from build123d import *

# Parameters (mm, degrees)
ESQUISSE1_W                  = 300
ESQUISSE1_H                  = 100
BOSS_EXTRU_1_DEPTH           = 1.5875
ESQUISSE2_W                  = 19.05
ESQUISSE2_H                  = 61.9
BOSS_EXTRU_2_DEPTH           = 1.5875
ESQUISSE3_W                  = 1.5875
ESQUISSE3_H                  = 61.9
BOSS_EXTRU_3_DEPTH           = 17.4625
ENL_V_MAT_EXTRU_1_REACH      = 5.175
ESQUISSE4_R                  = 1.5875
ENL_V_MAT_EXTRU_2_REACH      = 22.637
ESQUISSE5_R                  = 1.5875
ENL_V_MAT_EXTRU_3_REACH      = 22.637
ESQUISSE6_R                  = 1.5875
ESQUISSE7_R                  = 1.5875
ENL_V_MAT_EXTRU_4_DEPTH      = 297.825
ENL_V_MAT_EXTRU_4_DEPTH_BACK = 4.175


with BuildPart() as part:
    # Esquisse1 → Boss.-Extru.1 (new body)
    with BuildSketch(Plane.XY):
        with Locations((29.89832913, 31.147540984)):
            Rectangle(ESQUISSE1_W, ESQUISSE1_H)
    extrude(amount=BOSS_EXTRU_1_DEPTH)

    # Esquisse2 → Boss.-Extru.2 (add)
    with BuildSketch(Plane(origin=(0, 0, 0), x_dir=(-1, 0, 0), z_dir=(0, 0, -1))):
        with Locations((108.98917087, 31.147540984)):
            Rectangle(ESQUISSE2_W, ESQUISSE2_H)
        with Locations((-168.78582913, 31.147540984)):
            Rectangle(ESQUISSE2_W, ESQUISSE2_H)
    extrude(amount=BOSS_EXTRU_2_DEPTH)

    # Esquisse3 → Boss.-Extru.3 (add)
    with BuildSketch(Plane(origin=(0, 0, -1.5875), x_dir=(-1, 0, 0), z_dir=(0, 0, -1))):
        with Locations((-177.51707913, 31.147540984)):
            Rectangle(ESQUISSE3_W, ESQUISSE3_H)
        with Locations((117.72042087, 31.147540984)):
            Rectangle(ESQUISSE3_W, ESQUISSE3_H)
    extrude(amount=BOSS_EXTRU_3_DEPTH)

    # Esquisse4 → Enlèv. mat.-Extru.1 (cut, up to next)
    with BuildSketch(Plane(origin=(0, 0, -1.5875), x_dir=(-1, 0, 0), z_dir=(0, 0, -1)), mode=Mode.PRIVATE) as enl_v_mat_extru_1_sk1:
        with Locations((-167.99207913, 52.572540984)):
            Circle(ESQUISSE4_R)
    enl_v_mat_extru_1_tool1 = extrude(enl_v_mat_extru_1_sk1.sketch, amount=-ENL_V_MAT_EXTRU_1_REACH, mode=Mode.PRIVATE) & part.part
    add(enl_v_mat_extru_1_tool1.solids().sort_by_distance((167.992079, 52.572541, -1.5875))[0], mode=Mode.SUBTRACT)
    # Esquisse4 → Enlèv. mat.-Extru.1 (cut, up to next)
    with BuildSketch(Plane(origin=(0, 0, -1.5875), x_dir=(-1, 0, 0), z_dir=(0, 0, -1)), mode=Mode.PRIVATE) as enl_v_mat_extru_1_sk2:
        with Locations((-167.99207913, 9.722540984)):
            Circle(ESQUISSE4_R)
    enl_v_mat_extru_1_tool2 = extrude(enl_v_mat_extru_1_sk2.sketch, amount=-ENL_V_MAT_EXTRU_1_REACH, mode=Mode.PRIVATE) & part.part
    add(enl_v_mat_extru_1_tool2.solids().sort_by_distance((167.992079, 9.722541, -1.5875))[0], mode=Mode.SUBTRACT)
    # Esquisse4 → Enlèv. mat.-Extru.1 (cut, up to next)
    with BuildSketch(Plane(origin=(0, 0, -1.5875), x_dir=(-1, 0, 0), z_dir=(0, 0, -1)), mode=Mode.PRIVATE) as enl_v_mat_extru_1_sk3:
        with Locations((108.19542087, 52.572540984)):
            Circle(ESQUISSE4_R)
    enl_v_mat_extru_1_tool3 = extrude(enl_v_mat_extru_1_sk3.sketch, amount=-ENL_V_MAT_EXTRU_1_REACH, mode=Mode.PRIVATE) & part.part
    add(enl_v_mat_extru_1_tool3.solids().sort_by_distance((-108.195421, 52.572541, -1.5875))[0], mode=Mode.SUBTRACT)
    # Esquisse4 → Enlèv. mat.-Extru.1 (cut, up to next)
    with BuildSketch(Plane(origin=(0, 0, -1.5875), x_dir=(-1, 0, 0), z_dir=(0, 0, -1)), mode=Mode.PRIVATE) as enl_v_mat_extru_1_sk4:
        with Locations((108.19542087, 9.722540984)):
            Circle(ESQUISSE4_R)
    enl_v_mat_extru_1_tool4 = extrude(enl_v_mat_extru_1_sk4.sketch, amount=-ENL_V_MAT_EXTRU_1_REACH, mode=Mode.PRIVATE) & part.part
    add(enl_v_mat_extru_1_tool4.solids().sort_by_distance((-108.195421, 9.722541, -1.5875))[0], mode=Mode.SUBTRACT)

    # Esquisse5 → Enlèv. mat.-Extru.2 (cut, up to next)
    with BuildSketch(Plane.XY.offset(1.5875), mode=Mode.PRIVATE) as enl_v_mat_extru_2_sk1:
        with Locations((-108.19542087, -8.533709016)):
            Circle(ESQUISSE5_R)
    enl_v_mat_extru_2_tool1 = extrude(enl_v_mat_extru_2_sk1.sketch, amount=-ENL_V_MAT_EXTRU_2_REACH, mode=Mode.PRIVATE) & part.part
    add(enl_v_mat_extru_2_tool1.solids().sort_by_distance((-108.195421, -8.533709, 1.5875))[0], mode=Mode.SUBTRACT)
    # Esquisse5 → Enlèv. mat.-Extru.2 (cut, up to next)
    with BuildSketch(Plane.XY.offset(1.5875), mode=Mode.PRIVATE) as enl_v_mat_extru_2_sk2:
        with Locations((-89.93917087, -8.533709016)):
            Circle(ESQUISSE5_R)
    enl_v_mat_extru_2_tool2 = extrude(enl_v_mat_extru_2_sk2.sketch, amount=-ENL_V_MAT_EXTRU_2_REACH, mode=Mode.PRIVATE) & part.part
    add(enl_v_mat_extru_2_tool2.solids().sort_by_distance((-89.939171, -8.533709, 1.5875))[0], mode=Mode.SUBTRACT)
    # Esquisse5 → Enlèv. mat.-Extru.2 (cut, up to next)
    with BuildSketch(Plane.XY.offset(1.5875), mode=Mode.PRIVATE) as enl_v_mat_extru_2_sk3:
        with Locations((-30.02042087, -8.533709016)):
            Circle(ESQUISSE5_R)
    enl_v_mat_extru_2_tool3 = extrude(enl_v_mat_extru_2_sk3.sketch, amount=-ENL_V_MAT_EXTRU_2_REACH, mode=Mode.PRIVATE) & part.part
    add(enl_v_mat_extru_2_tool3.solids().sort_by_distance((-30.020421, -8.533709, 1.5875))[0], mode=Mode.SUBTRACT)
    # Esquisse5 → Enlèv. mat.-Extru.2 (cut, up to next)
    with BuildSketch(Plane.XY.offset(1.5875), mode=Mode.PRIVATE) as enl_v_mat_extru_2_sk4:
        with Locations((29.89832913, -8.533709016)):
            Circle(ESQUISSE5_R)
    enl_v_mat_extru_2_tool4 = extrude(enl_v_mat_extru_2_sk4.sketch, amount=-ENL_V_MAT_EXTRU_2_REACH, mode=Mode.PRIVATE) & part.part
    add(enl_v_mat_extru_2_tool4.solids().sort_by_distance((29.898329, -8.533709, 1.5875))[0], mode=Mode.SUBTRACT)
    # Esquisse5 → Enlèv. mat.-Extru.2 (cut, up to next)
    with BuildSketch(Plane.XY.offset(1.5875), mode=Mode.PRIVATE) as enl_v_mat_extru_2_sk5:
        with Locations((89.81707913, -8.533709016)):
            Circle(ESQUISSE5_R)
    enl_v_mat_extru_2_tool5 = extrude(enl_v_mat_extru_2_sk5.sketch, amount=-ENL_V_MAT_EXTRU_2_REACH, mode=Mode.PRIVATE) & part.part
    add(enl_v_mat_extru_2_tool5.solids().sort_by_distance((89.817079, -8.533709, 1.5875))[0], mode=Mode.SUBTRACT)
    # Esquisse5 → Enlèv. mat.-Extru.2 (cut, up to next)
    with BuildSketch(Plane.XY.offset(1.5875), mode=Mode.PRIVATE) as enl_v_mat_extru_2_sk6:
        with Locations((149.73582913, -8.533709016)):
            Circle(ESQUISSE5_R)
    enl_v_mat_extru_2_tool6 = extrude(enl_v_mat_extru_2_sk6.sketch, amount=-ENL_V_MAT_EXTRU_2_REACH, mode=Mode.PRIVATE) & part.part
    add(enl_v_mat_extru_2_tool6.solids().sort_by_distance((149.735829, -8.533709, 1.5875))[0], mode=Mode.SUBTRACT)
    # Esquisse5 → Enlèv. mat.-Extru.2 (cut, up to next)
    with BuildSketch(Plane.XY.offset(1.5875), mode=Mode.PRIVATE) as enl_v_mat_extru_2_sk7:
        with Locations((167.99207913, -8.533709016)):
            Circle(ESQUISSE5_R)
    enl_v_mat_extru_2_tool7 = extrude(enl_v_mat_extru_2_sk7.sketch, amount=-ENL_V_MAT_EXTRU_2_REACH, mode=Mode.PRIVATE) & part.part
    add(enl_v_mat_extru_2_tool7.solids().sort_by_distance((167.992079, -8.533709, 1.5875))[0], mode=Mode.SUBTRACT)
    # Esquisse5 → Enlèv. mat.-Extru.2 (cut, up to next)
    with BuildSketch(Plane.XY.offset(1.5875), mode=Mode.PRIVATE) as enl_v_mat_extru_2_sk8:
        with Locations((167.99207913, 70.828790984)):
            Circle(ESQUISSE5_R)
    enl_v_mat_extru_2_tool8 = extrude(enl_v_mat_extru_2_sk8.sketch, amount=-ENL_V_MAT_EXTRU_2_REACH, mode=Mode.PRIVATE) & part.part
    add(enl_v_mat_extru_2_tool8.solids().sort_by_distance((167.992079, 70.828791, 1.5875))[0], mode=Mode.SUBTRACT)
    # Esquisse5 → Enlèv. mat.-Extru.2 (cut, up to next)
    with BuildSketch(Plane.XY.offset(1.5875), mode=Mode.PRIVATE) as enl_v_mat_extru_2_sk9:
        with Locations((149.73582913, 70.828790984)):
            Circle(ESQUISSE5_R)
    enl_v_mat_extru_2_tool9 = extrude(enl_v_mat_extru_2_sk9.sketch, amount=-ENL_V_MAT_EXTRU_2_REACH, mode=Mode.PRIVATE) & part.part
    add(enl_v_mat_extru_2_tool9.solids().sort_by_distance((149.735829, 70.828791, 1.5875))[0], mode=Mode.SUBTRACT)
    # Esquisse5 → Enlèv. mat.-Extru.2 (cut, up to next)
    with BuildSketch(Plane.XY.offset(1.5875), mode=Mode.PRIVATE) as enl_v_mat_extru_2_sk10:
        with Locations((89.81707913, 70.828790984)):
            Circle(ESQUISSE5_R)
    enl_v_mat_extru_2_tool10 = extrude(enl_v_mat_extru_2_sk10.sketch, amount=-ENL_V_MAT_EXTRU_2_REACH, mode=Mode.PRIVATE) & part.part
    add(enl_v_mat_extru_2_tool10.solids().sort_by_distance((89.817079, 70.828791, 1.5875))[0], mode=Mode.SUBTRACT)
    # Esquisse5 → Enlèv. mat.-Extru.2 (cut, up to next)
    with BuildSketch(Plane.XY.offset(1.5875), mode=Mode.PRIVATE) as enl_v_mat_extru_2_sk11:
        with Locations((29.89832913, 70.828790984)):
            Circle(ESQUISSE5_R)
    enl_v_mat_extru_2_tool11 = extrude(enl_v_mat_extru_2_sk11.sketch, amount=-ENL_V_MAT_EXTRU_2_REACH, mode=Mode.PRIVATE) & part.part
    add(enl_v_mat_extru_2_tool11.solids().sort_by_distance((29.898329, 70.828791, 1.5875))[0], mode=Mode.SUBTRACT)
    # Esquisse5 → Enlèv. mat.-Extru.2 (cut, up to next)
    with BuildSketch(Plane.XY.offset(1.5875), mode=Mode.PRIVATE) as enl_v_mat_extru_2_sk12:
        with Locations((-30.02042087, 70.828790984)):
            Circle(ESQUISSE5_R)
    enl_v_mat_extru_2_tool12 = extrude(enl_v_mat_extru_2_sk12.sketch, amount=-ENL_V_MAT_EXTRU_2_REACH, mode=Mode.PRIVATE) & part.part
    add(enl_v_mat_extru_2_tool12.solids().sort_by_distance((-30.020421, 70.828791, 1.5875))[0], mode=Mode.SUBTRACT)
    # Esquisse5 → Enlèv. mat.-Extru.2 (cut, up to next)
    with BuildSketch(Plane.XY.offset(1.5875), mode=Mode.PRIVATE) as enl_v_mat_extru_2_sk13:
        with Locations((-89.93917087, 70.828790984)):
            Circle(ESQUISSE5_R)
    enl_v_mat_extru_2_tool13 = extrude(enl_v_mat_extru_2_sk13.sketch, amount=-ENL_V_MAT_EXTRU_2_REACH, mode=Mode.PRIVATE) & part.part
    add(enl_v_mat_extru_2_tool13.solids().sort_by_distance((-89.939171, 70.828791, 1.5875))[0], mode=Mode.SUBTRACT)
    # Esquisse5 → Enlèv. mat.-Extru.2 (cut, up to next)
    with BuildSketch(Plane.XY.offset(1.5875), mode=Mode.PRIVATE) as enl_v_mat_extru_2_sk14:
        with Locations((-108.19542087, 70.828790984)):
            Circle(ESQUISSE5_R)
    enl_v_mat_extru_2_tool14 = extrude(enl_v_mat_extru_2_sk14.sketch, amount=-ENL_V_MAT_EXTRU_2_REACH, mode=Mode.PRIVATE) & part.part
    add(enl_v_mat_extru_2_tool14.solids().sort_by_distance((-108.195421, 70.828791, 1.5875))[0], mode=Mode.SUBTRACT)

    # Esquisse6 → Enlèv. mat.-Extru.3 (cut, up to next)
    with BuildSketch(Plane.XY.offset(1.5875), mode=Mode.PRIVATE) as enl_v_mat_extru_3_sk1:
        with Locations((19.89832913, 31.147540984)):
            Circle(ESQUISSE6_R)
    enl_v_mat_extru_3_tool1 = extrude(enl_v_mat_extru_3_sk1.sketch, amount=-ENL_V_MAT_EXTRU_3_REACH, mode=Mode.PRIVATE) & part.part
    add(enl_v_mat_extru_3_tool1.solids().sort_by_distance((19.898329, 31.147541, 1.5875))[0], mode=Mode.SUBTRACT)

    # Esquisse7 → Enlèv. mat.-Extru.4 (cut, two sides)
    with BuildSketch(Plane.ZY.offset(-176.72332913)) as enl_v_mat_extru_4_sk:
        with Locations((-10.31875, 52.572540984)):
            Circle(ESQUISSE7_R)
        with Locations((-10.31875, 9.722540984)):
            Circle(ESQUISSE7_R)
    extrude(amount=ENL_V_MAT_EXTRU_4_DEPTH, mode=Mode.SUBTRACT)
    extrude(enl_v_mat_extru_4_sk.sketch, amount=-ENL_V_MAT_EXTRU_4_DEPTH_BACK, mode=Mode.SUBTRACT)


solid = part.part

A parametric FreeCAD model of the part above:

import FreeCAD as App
import Part
import Sketcher

V = App.Vector
Q = App.Units.Quantity


def add_polygon(sketch, points):
    """Adds a closed chain of lines whose ends are joined by coincident constraints."""
    first, n = sketch.GeometryCount, len(points)
    for a, b in zip(points, points[1:] + points[:1]):
        sketch.addGeometry(Part.LineSegment(App.Vector(*a, 0), App.Vector(*b, 0)), False)
    for i in range(n):
        sketch.addConstraint(Sketcher.Constraint("Coincident", first + i, 2, first + (i + 1) % n, 1))

doc = App.newDocument("Part")
body = doc.addObject("PartDesign::Body", "Body")

# Sketch on XY plane
sketch1 = doc.addObject("Sketcher::SketchObject", "Sketch")
body.addObject(sketch1)
sketch1.AttachmentSupport = (doc.XY_Plane, [""])
sketch1.MapMode = "FlatFace"
add_polygon(sketch1, [(-120.101671, 81.147541), (-120.101671, -18.852459), (179.898329, -18.852459), (179.898329, 81.147541)])  # lines 0-3
sketch1.addConstraint([
    Sketcher.Constraint("Vertical", 0),
    Sketcher.Constraint("Horizontal", 1),
    Sketcher.Constraint("Vertical", 2),
    Sketcher.Constraint("Horizontal", 3),
    Sketcher.Constraint("DistanceX", 1, 1, 1, 2, Q("300 mm")),
    Sketcher.Constraint("DistanceY", 0, 2, 0, 1, Q("100 mm")),
    Sketcher.Constraint("DistanceX", 0, 2, -1, 1, Q("120.101671 mm")),
    Sketcher.Constraint("DistanceY", 0, 2, -1, 1, Q("18.852459 mm")),
])
pad1 = doc.addObject("PartDesign::Pad", "Pad")
body.addObject(pad1)
pad1.Profile = sketch1
pad1.Length = Q("0.0625 in")

# Sketch on XY plane
sketch2 = doc.addObject("Sketcher::SketchObject", "Sketch001")
body.addObject(sketch2)
sketch2.AttachmentSupport = (doc.XY_Plane, [""])
sketch2.MapMode = "FlatFace"
add_polygon(sketch2, [(-99.464171, 62.097541), (-99.464171, 0.197541), (-118.514171, 0.197541), (-118.514171, 62.097541)])  # lines 0-3
add_polygon(sketch2, [(178.310829, 62.097541), (178.310829, 0.197541), (159.260829, 0.197541), (159.260829, 62.097541)])  # lines 4-7
sketch2.addConstraint([
    Sketcher.Constraint("Vertical", 0),
    Sketcher.Constraint("Horizontal", 1),
    Sketcher.Constraint("Vertical", 2),
    Sketcher.Constraint("Horizontal", 3),
    Sketcher.Constraint("Vertical", 4),
    Sketcher.Constraint("Horizontal", 5),
    Sketcher.Constraint("Vertical", 6),
    Sketcher.Constraint("Horizontal", 7),
    Sketcher.Constraint("Horizontal", 1, 2, 4, 2),
    Sketcher.Constraint("Horizontal", 3, 2, 6, 2),
    Sketcher.Constraint("Equal", 3, 5),
    Sketcher.Constraint("DistanceX", 1, 2, 1, 1, Q("0.75 in")),
    Sketcher.Constraint("DistanceY", 0, 2, 0, 1, Q("61.9 mm")),
    Sketcher.Constraint("DistanceX", 0, 2, 4, 2, Q("277.775 mm")),
    Sketcher.Constraint("DistanceX", 0, 2, -1, 1, Q("99.464171 mm")),
    Sketcher.Constraint("DistanceY", -1, 1, 0, 2, Q("0.197541 mm")),
])
pad2 = doc.addObject("PartDesign::Pad", "Pad001")
body.addObject(pad2)
pad2.Profile = sketch2
pad2.Length = Q("0.0625 in")
pad2.Reversed = True

# Sketch on XY plane
sketch3 = doc.addObject("Sketcher::SketchObject", "Sketch002")
body.addObject(sketch3)
sketch3.AttachmentSupport = (doc.XY_Plane, [""])
sketch3.MapMode = "FlatFace"
sketch3.AttachmentOffset = App.Placement(V(0, 0, -0.0625 * 25.4), App.Rotation())
add_polygon(sketch3, [(178.310829, 62.097541), (178.310829, 0.197541), (176.723329, 0.197541), (176.723329, 62.097541)])  # lines 0-3
add_polygon(sketch3, [(-116.926671, 62.097541), (-116.926671, 0.197541), (-118.514171, 0.197541), (-118.514171, 62.097541)])  # lines 4-7
sketch3.addConstraint([
    Sketcher.Constraint("Vertical", 0),
    Sketcher.Constraint("Horizontal", 1),
    Sketcher.Constraint("Vertical", 2),
    Sketcher.Constraint("Horizontal", 3),
    Sketcher.Constraint("Vertical", 4),
    Sketcher.Constraint("Horizontal", 5),
    Sketcher.Constraint("Vertical", 6),
    Sketcher.Constraint("Horizontal", 7),
    Sketcher.Constraint("Horizontal", 1, 2, 4, 2),
    Sketcher.Constraint("Horizontal", 3, 2, 6, 2),
    Sketcher.Constraint("Equal", 3, 5),
    Sketcher.Constraint("DistanceX", 1, 2, 1, 1, Q("0.0625 in")),
    Sketcher.Constraint("DistanceY", 0, 2, 0, 1, Q("61.9 mm")),
    Sketcher.Constraint("DistanceX", 4, 2, 1, 2, Q("293.65 mm")),
    Sketcher.Constraint("DistanceX", -1, 1, 0, 2, Q("178.310829 mm")),
    Sketcher.Constraint("DistanceY", -1, 1, 0, 2, Q("0.197541 mm")),
])
pad3 = doc.addObject("PartDesign::Pad", "Pad002")
body.addObject(pad3)
pad3.Profile = sketch3
pad3.Length = Q("0.6875 in")
pad3.Reversed = True

# Sketch on XY plane
sketch4 = doc.addObject("Sketcher::SketchObject", "Sketch003")
body.addObject(sketch4)
sketch4.AttachmentSupport = (doc.XY_Plane, [""])
sketch4.MapMode = "FlatFace"
sketch4.AttachmentOffset = App.Placement(V(0, 0, -0.0625 * 25.4), App.Rotation())
sketch4.addGeometry(Part.Circle(V(167.992079, 52.572541, 0), V(0, 0, 1), 1.5875), False)
sketch4.addConstraint([
    Sketcher.Constraint("Diameter", 0, Q("0.125 in")),
    Sketcher.Constraint("DistanceX", -1, 1, 0, 3, Q("167.992079 mm")),
    Sketcher.Constraint("DistanceY", -1, 1, 0, 3, Q("52.572541 mm")),
])
pocket1 = doc.addObject("PartDesign::Pocket", "Pocket")
body.addObject(pocket1)
pocket1.Profile = sketch4
pocket1.Type = "UpToFirst"
pocket1.Reversed = True

# Sketch on XY plane
sketch5 = doc.addObject("Sketcher::SketchObject", "Sketch004")
body.addObject(sketch5)
sketch5.AttachmentSupport = (doc.XY_Plane, [""])
sketch5.MapMode = "FlatFace"
sketch5.AttachmentOffset = App.Placement(V(0, 0, -0.0625 * 25.4), App.Rotation())
sketch5.addGeometry(Part.Circle(V(167.992079, 9.722541, 0), V(0, 0, 1), 1.5875), False)
sketch5.addConstraint([
    Sketcher.Constraint("Diameter", 0, Q("0.125 in")),
    Sketcher.Constraint("DistanceX", -1, 1, 0, 3, Q("167.992079 mm")),
    Sketcher.Constraint("DistanceY", -1, 1, 0, 3, Q("9.722541 mm")),
])
pocket2 = doc.addObject("PartDesign::Pocket", "Pocket001")
body.addObject(pocket2)
pocket2.Profile = sketch5
pocket2.Type = "UpToFirst"
pocket2.Reversed = True

# Sketch on XY plane
sketch6 = doc.addObject("Sketcher::SketchObject", "Sketch005")
body.addObject(sketch6)
sketch6.AttachmentSupport = (doc.XY_Plane, [""])
sketch6.MapMode = "FlatFace"
sketch6.AttachmentOffset = App.Placement(V(0, 0, -0.0625 * 25.4), App.Rotation())
sketch6.addGeometry(Part.Circle(V(-108.195421, 52.572541, 0), V(0, 0, 1), 1.5875), False)
sketch6.addConstraint([
    Sketcher.Constraint("Diameter", 0, Q("0.125 in")),
    Sketcher.Constraint("DistanceX", 0, 3, -1, 1, Q("108.195421 mm")),
    Sketcher.Constraint("DistanceY", -1, 1, 0, 3, Q("52.572541 mm")),
])
pocket3 = doc.addObject("PartDesign::Pocket", "Pocket002")
body.addObject(pocket3)
pocket3.Profile = sketch6
pocket3.Type = "UpToFirst"
pocket3.Reversed = True

# Sketch on XY plane
sketch7 = doc.addObject("Sketcher::SketchObject", "Sketch006")
body.addObject(sketch7)
sketch7.AttachmentSupport = (doc.XY_Plane, [""])
sketch7.MapMode = "FlatFace"
sketch7.AttachmentOffset = App.Placement(V(0, 0, -0.0625 * 25.4), App.Rotation())
sketch7.addGeometry(Part.Circle(V(-108.195421, 9.722541, 0), V(0, 0, 1), 1.5875), False)
sketch7.addConstraint([
    Sketcher.Constraint("Diameter", 0, Q("0.125 in")),
    Sketcher.Constraint("DistanceX", 0, 3, -1, 1, Q("108.195421 mm")),
    Sketcher.Constraint("DistanceY", -1, 1, 0, 3, Q("9.722541 mm")),
])
pocket4 = doc.addObject("PartDesign::Pocket", "Pocket003")
body.addObject(pocket4)
pocket4.Profile = sketch7
pocket4.Type = "UpToFirst"
pocket4.Reversed = True

# Sketch on XY plane
sketch8 = doc.addObject("Sketcher::SketchObject", "Sketch007")
body.addObject(sketch8)
sketch8.AttachmentSupport = (doc.XY_Plane, [""])
sketch8.MapMode = "FlatFace"
sketch8.AttachmentOffset = App.Placement(V(0, 0, 0.0625 * 25.4), App.Rotation())
sketch8.addGeometry(Part.Circle(V(-108.195421, -8.533709, 0), V(0, 0, 1), 1.5875), False)
sketch8.addConstraint([
    Sketcher.Constraint("Diameter", 0, Q("0.125 in")),
    Sketcher.Constraint("DistanceX", 0, 3, -1, 1, Q("108.195421 mm")),
    Sketcher.Constraint("DistanceY", 0, 3, -1, 1, Q("8.533709 mm")),
])
pocket5 = doc.addObject("PartDesign::Pocket", "Pocket004")
body.addObject(pocket5)
pocket5.Profile = sketch8
pocket5.Type = "UpToFirst"

# Sketch on XY plane
sketch9 = doc.addObject("Sketcher::SketchObject", "Sketch008")
body.addObject(sketch9)
sketch9.AttachmentSupport = (doc.XY_Plane, [""])
sketch9.MapMode = "FlatFace"
sketch9.AttachmentOffset = App.Placement(V(0, 0, 0.0625 * 25.4), App.Rotation())
sketch9.addGeometry(Part.Circle(V(-89.939171, -8.533709, 0), V(0, 0, 1), 1.5875), False)
sketch9.addConstraint([
    Sketcher.Constraint("Diameter", 0, Q("0.125 in")),
    Sketcher.Constraint("DistanceX", 0, 3, -1, 1, Q("89.939171 mm")),
    Sketcher.Constraint("DistanceY", 0, 3, -1, 1, Q("8.533709 mm")),
])
pocket6 = doc.addObject("PartDesign::Pocket", "Pocket005")
body.addObject(pocket6)
pocket6.Profile = sketch9
pocket6.Type = "UpToFirst"

# Sketch on XY plane
sketch10 = doc.addObject("Sketcher::SketchObject", "Sketch009")
body.addObject(sketch10)
sketch10.AttachmentSupport = (doc.XY_Plane, [""])
sketch10.MapMode = "FlatFace"
sketch10.AttachmentOffset = App.Placement(V(0, 0, 0.0625 * 25.4), App.Rotation())
sketch10.addGeometry(Part.Circle(V(-30.020421, -8.533709, 0), V(0, 0, 1), 1.5875), False)
sketch10.addConstraint([
    Sketcher.Constraint("Diameter", 0, Q("0.125 in")),
    Sketcher.Constraint("DistanceX", 0, 3, -1, 1, Q("30.020421 mm")),
    Sketcher.Constraint("DistanceY", 0, 3, -1, 1, Q("8.533709 mm")),
])
pocket7 = doc.addObject("PartDesign::Pocket", "Pocket006")
body.addObject(pocket7)
pocket7.Profile = sketch10
pocket7.Type = "UpToFirst"

# Sketch on XY plane
sketch11 = doc.addObject("Sketcher::SketchObject", "Sketch010")
body.addObject(sketch11)
sketch11.AttachmentSupport = (doc.XY_Plane, [""])
sketch11.MapMode = "FlatFace"
sketch11.AttachmentOffset = App.Placement(V(0, 0, 0.0625 * 25.4), App.Rotation())
sketch11.addGeometry(Part.Circle(V(29.898329, -8.533709, 0), V(0, 0, 1), 1.5875), False)
sketch11.addConstraint([
    Sketcher.Constraint("Diameter", 0, Q("0.125 in")),
    Sketcher.Constraint("DistanceX", -1, 1, 0, 3, Q("29.898329 mm")),
    Sketcher.Constraint("DistanceY", 0, 3, -1, 1, Q("8.533709 mm")),
])
pocket8 = doc.addObject("PartDesign::Pocket", "Pocket007")
body.addObject(pocket8)
pocket8.Profile = sketch11
pocket8.Type = "UpToFirst"

# Sketch on XY plane
sketch12 = doc.addObject("Sketcher::SketchObject", "Sketch011")
body.addObject(sketch12)
sketch12.AttachmentSupport = (doc.XY_Plane, [""])
sketch12.MapMode = "FlatFace"
sketch12.AttachmentOffset = App.Placement(V(0, 0, 0.0625 * 25.4), App.Rotation())
sketch12.addGeometry(Part.Circle(V(89.817079, -8.533709, 0), V(0, 0, 1), 1.5875), False)
sketch12.addConstraint([
    Sketcher.Constraint("Diameter", 0, Q("0.125 in")),
    Sketcher.Constraint("DistanceX", -1, 1, 0, 3, Q("89.817079 mm")),
    Sketcher.Constraint("DistanceY", 0, 3, -1, 1, Q("8.533709 mm")),
])
pocket9 = doc.addObject("PartDesign::Pocket", "Pocket008")
body.addObject(pocket9)
pocket9.Profile = sketch12
pocket9.Type = "UpToFirst"

# Sketch on XY plane
sketch13 = doc.addObject("Sketcher::SketchObject", "Sketch012")
body.addObject(sketch13)
sketch13.AttachmentSupport = (doc.XY_Plane, [""])
sketch13.MapMode = "FlatFace"
sketch13.AttachmentOffset = App.Placement(V(0, 0, 0.0625 * 25.4), App.Rotation())
sketch13.addGeometry(Part.Circle(V(149.735829, -8.533709, 0), V(0, 0, 1), 1.5875), False)
sketch13.addConstraint([
    Sketcher.Constraint("Diameter", 0, Q("0.125 in")),
    Sketcher.Constraint("DistanceX", -1, 1, 0, 3, Q("149.735829 mm")),
    Sketcher.Constraint("DistanceY", 0, 3, -1, 1, Q("8.533709 mm")),
])
pocket10 = doc.addObject("PartDesign::Pocket", "Pocket009")
body.addObject(pocket10)
pocket10.Profile = sketch13
pocket10.Type = "UpToFirst"

# Sketch on XY plane
sketch14 = doc.addObject("Sketcher::SketchObject", "Sketch013")
body.addObject(sketch14)
sketch14.AttachmentSupport = (doc.XY_Plane, [""])
sketch14.MapMode = "FlatFace"
sketch14.AttachmentOffset = App.Placement(V(0, 0, 0.0625 * 25.4), App.Rotation())
sketch14.addGeometry(Part.Circle(V(167.992079, -8.533709, 0), V(0, 0, 1), 1.5875), False)
sketch14.addConstraint([
    Sketcher.Constraint("Diameter", 0, Q("0.125 in")),
    Sketcher.Constraint("DistanceX", -1, 1, 0, 3, Q("167.992079 mm")),
    Sketcher.Constraint("DistanceY", 0, 3, -1, 1, Q("8.533709 mm")),
])
pocket11 = doc.addObject("PartDesign::Pocket", "Pocket010")
body.addObject(pocket11)
pocket11.Profile = sketch14
pocket11.Type = "UpToFirst"

# Sketch on XY plane
sketch15 = doc.addObject("Sketcher::SketchObject", "Sketch014")
body.addObject(sketch15)
sketch15.AttachmentSupport = (doc.XY_Plane, [""])
sketch15.MapMode = "FlatFace"
sketch15.AttachmentOffset = App.Placement(V(0, 0, 0.0625 * 25.4), App.Rotation())
sketch15.addGeometry(Part.Circle(V(167.992079, 70.828791, 0), V(0, 0, 1), 1.5875), False)
sketch15.addConstraint([
    Sketcher.Constraint("Diameter", 0, Q("0.125 in")),
    Sketcher.Constraint("DistanceX", -1, 1, 0, 3, Q("167.992079 mm")),
    Sketcher.Constraint("DistanceY", -1, 1, 0, 3, Q("70.828791 mm")),
])
pocket12 = doc.addObject("PartDesign::Pocket", "Pocket011")
body.addObject(pocket12)
pocket12.Profile = sketch15
pocket12.Type = "UpToFirst"

# Sketch on XY plane
sketch16 = doc.addObject("Sketcher::SketchObject", "Sketch015")
body.addObject(sketch16)
sketch16.AttachmentSupport = (doc.XY_Plane, [""])
sketch16.MapMode = "FlatFace"
sketch16.AttachmentOffset = App.Placement(V(0, 0, 0.0625 * 25.4), App.Rotation())
sketch16.addGeometry(Part.Circle(V(149.735829, 70.828791, 0), V(0, 0, 1), 1.5875), False)
sketch16.addConstraint([
    Sketcher.Constraint("Diameter", 0, Q("0.125 in")),
    Sketcher.Constraint("DistanceX", -1, 1, 0, 3, Q("149.735829 mm")),
    Sketcher.Constraint("DistanceY", -1, 1, 0, 3, Q("70.828791 mm")),
])
pocket13 = doc.addObject("PartDesign::Pocket", "Pocket012")
body.addObject(pocket13)
pocket13.Profile = sketch16
pocket13.Type = "UpToFirst"

# Sketch on XY plane
sketch17 = doc.addObject("Sketcher::SketchObject", "Sketch016")
body.addObject(sketch17)
sketch17.AttachmentSupport = (doc.XY_Plane, [""])
sketch17.MapMode = "FlatFace"
sketch17.AttachmentOffset = App.Placement(V(0, 0, 0.0625 * 25.4), App.Rotation())
sketch17.addGeometry(Part.Circle(V(89.817079, 70.828791, 0), V(0, 0, 1), 1.5875), False)
sketch17.addConstraint([
    Sketcher.Constraint("Diameter", 0, Q("0.125 in")),
    Sketcher.Constraint("DistanceX", -1, 1, 0, 3, Q("89.817079 mm")),
    Sketcher.Constraint("DistanceY", -1, 1, 0, 3, Q("70.828791 mm")),
])
pocket14 = doc.addObject("PartDesign::Pocket", "Pocket013")
body.addObject(pocket14)
pocket14.Profile = sketch17
pocket14.Type = "UpToFirst"

# Sketch on XY plane
sketch18 = doc.addObject("Sketcher::SketchObject", "Sketch017")
body.addObject(sketch18)
sketch18.AttachmentSupport = (doc.XY_Plane, [""])
sketch18.MapMode = "FlatFace"
sketch18.AttachmentOffset = App.Placement(V(0, 0, 0.0625 * 25.4), App.Rotation())
sketch18.addGeometry(Part.Circle(V(29.898329, 70.828791, 0), V(0, 0, 1), 1.5875), False)
sketch18.addConstraint([
    Sketcher.Constraint("Diameter", 0, Q("0.125 in")),
    Sketcher.Constraint("DistanceX", -1, 1, 0, 3, Q("29.898329 mm")),
    Sketcher.Constraint("DistanceY", -1, 1, 0, 3, Q("70.828791 mm")),
])
pocket15 = doc.addObject("PartDesign::Pocket", "Pocket014")
body.addObject(pocket15)
pocket15.Profile = sketch18
pocket15.Type = "UpToFirst"

# Sketch on XY plane
sketch19 = doc.addObject("Sketcher::SketchObject", "Sketch018")
body.addObject(sketch19)
sketch19.AttachmentSupport = (doc.XY_Plane, [""])
sketch19.MapMode = "FlatFace"
sketch19.AttachmentOffset = App.Placement(V(0, 0, 0.0625 * 25.4), App.Rotation())
sketch19.addGeometry(Part.Circle(V(-30.020421, 70.828791, 0), V(0, 0, 1), 1.5875), False)
sketch19.addConstraint([
    Sketcher.Constraint("Diameter", 0, Q("0.125 in")),
    Sketcher.Constraint("DistanceX", 0, 3, -1, 1, Q("30.020421 mm")),
    Sketcher.Constraint("DistanceY", -1, 1, 0, 3, Q("70.828791 mm")),
])
pocket16 = doc.addObject("PartDesign::Pocket", "Pocket015")
body.addObject(pocket16)
pocket16.Profile = sketch19
pocket16.Type = "UpToFirst"

# Sketch on XY plane
sketch20 = doc.addObject("Sketcher::SketchObject", "Sketch019")
body.addObject(sketch20)
sketch20.AttachmentSupport = (doc.XY_Plane, [""])
sketch20.MapMode = "FlatFace"
sketch20.AttachmentOffset = App.Placement(V(0, 0, 0.0625 * 25.4), App.Rotation())
sketch20.addGeometry(Part.Circle(V(-89.939171, 70.828791, 0), V(0, 0, 1), 1.5875), False)
sketch20.addConstraint([
    Sketcher.Constraint("Diameter", 0, Q("0.125 in")),
    Sketcher.Constraint("DistanceX", 0, 3, -1, 1, Q("89.939171 mm")),
    Sketcher.Constraint("DistanceY", -1, 1, 0, 3, Q("70.828791 mm")),
])
pocket17 = doc.addObject("PartDesign::Pocket", "Pocket016")
body.addObject(pocket17)
pocket17.Profile = sketch20
pocket17.Type = "UpToFirst"

# Sketch on XY plane
sketch21 = doc.addObject("Sketcher::SketchObject", "Sketch020")
body.addObject(sketch21)
sketch21.AttachmentSupport = (doc.XY_Plane, [""])
sketch21.MapMode = "FlatFace"
sketch21.AttachmentOffset = App.Placement(V(0, 0, 0.0625 * 25.4), App.Rotation())
sketch21.addGeometry(Part.Circle(V(-108.195421, 70.828791, 0), V(0, 0, 1), 1.5875), False)
sketch21.addConstraint([
    Sketcher.Constraint("Diameter", 0, Q("0.125 in")),
    Sketcher.Constraint("DistanceX", 0, 3, -1, 1, Q("108.195421 mm")),
    Sketcher.Constraint("DistanceY", -1, 1, 0, 3, Q("70.828791 mm")),
])
pocket18 = doc.addObject("PartDesign::Pocket", "Pocket017")
body.addObject(pocket18)
pocket18.Profile = sketch21
pocket18.Type = "UpToFirst"

# Sketch on XY plane
sketch22 = doc.addObject("Sketcher::SketchObject", "Sketch021")
body.addObject(sketch22)
sketch22.AttachmentSupport = (doc.XY_Plane, [""])
sketch22.MapMode = "FlatFace"
sketch22.AttachmentOffset = App.Placement(V(0, 0, 0.0625 * 25.4), App.Rotation())
sketch22.addGeometry(Part.Circle(V(19.898329, 31.147541, 0), V(0, 0, 1), 1.5875), False)
sketch22.addConstraint([
    Sketcher.Constraint("Diameter", 0, Q("0.125 in")),
    Sketcher.Constraint("DistanceX", -1, 1, 0, 3, Q("19.898329 mm")),
    Sketcher.Constraint("DistanceY", -1, 1, 0, 3, Q("31.147541 mm")),
])
pocket19 = doc.addObject("PartDesign::Pocket", "Pocket018")
body.addObject(pocket19)
pocket19.Profile = sketch22
pocket19.Type = "UpToFirst"

# Sketch on YZ plane
sketch23 = doc.addObject("Sketcher::SketchObject", "Sketch022")
body.addObject(sketch23)
sketch23.AttachmentSupport = (doc.YZ_Plane, [""])
sketch23.MapMode = "FlatFace"
sketch23.AttachmentOffset = App.Placement(V(0, 0, 176.723329), App.Rotation())
sketch23.addGeometry([
    Part.Circle(V(52.572541, -10.31875, 0), V(0, 0, 1), 1.5875),
    Part.Circle(V(9.722541, -10.31875, 0), V(0, 0, 1), 1.5875),
], False)
sketch23.addConstraint([
    Sketcher.Constraint("Equal", 0, 1),
    Sketcher.Constraint("Horizontal", 0, 3, 1, 3),
    Sketcher.Constraint("Diameter", 0, Q("0.125 in")),
    Sketcher.Constraint("DistanceY", 0, 3, -1, 1, Q("0.40625 in")),
    Sketcher.Constraint("DistanceX", 1, 3, 0, 3, Q("42.85 mm")),
    Sketcher.Constraint("DistanceX", -1, 1, 0, 3, Q("52.572541 mm")),
])
pocket20 = doc.addObject("PartDesign::Pocket", "Pocket019")
body.addObject(pocket20)
pocket20.Profile = sketch23
pocket20.Type = "ThroughAll"
pocket20.Midplane = True

doc.recompute()
